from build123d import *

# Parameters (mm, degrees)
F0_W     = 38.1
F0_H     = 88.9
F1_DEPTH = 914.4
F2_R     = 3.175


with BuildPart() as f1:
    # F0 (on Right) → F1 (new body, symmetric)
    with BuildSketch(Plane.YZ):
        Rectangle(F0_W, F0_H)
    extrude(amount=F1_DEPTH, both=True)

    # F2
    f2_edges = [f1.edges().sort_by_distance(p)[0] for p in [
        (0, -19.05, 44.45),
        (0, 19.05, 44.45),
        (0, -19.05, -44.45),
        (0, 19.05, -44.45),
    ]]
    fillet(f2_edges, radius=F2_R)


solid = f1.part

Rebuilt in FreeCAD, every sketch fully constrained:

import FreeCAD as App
import Part
import Sketcher

V = App.Vector
Q = App.Units.Quantity


def edges_at(feature, points):
    """Names of the edges that pass closest to the given points."""
    edges = feature.Shape.Edges
    near = lambda p: min(range(len(edges)), key=lambda i: edges[i].distToShape(Part.Vertex(*p))[0])
    return sorted({f"Edge{near(p) + 1}" for p in points})

doc = App.newDocument("Part")
params = doc.addObject("Spreadsheet::Sheet", "Params")
for row, (alias, value) in enumerate([
    ("sketch1_width", "1.5 in"),
    ("sketch1_height", "3.5 in"),
    ("pad1_length", "72 in"),
    ("fillet_radius", "0.125 in"),
], start=1):
    params.set(f"A{row}", alias)
    params.set(f"B{row}", "=" + value)
    params.setAlias(f"B{row}", alias)

body = doc.addObject("PartDesign::Body", "Body")

sketch1 = doc.addObject("Sketcher::SketchObject", "Sketch")
body.addObject(sketch1)
sketch1.AttachmentSupport = (doc.YZ_Plane, [""])
sketch1.MapMode = "FlatFace"
sketch1.addGeometry([
    Part.LineSegment(V(-19, 44, 0), V(-19, -44, 0)),
    Part.LineSegment(V(-19, -44, 0), V(19, -44, 0)),
    Part.LineSegment(V(19, -44, 0), V(19, 44, 0)),
    Part.LineSegment(V(19, 44, 0), V(-19, 44, 0)),
], False)
sketch1.addConstraint([
    Sketcher.Constraint("Coincident", 0, 2, 1, 1),
    Sketcher.Constraint("Coincident", 1, 2, 2, 1),
    Sketcher.Constraint("Coincident", 2, 2, 3, 1),
    Sketcher.Constraint("Coincident", 3, 2, 0, 1),
    Sketcher.Constraint("Vertical", 0),
    Sketcher.Constraint("Horizontal", 1),
    Sketcher.Constraint("Vertical", 2),
    Sketcher.Constraint("Horizontal", 3),
    Sketcher.Constraint("Symmetric", 0, 2, 2, 2, -1, 1),
    Sketcher.Constraint("DistanceX", 1, 1, 1, 2, Q("1.5 in")),
    Sketcher.Constraint("DistanceY", 0, 2, 0, 1, Q("3.5 in")),
])
sketch1.setExpression("Constraints[9]", "Params.sketch1_width")
sketch1.setExpression("Constraints[10]", "Params.sketch1_height")
pad1 = doc.addObject("PartDesign::Pad", "Pad")
body.addObject(pad1)
pad1.Profile = sketch1
pad1.setExpression("Length", "Params.pad1_length")
pad1.Midplane = True
doc.recompute()

fillet = doc.addObject("PartDesign::Fillet", "Fillet")
body.addObject(fillet)
fillet.Base = (pad1, edges_at(pad1, [
    (0, -19.05, 44.45),
    (0, 19.05, 44.45),
    (0, -19.05, -44.45),
    (0, 19.05, -44.45),
]))
fillet.setExpression("Radius", "Params.fillet_radius")

doc.recompute()
